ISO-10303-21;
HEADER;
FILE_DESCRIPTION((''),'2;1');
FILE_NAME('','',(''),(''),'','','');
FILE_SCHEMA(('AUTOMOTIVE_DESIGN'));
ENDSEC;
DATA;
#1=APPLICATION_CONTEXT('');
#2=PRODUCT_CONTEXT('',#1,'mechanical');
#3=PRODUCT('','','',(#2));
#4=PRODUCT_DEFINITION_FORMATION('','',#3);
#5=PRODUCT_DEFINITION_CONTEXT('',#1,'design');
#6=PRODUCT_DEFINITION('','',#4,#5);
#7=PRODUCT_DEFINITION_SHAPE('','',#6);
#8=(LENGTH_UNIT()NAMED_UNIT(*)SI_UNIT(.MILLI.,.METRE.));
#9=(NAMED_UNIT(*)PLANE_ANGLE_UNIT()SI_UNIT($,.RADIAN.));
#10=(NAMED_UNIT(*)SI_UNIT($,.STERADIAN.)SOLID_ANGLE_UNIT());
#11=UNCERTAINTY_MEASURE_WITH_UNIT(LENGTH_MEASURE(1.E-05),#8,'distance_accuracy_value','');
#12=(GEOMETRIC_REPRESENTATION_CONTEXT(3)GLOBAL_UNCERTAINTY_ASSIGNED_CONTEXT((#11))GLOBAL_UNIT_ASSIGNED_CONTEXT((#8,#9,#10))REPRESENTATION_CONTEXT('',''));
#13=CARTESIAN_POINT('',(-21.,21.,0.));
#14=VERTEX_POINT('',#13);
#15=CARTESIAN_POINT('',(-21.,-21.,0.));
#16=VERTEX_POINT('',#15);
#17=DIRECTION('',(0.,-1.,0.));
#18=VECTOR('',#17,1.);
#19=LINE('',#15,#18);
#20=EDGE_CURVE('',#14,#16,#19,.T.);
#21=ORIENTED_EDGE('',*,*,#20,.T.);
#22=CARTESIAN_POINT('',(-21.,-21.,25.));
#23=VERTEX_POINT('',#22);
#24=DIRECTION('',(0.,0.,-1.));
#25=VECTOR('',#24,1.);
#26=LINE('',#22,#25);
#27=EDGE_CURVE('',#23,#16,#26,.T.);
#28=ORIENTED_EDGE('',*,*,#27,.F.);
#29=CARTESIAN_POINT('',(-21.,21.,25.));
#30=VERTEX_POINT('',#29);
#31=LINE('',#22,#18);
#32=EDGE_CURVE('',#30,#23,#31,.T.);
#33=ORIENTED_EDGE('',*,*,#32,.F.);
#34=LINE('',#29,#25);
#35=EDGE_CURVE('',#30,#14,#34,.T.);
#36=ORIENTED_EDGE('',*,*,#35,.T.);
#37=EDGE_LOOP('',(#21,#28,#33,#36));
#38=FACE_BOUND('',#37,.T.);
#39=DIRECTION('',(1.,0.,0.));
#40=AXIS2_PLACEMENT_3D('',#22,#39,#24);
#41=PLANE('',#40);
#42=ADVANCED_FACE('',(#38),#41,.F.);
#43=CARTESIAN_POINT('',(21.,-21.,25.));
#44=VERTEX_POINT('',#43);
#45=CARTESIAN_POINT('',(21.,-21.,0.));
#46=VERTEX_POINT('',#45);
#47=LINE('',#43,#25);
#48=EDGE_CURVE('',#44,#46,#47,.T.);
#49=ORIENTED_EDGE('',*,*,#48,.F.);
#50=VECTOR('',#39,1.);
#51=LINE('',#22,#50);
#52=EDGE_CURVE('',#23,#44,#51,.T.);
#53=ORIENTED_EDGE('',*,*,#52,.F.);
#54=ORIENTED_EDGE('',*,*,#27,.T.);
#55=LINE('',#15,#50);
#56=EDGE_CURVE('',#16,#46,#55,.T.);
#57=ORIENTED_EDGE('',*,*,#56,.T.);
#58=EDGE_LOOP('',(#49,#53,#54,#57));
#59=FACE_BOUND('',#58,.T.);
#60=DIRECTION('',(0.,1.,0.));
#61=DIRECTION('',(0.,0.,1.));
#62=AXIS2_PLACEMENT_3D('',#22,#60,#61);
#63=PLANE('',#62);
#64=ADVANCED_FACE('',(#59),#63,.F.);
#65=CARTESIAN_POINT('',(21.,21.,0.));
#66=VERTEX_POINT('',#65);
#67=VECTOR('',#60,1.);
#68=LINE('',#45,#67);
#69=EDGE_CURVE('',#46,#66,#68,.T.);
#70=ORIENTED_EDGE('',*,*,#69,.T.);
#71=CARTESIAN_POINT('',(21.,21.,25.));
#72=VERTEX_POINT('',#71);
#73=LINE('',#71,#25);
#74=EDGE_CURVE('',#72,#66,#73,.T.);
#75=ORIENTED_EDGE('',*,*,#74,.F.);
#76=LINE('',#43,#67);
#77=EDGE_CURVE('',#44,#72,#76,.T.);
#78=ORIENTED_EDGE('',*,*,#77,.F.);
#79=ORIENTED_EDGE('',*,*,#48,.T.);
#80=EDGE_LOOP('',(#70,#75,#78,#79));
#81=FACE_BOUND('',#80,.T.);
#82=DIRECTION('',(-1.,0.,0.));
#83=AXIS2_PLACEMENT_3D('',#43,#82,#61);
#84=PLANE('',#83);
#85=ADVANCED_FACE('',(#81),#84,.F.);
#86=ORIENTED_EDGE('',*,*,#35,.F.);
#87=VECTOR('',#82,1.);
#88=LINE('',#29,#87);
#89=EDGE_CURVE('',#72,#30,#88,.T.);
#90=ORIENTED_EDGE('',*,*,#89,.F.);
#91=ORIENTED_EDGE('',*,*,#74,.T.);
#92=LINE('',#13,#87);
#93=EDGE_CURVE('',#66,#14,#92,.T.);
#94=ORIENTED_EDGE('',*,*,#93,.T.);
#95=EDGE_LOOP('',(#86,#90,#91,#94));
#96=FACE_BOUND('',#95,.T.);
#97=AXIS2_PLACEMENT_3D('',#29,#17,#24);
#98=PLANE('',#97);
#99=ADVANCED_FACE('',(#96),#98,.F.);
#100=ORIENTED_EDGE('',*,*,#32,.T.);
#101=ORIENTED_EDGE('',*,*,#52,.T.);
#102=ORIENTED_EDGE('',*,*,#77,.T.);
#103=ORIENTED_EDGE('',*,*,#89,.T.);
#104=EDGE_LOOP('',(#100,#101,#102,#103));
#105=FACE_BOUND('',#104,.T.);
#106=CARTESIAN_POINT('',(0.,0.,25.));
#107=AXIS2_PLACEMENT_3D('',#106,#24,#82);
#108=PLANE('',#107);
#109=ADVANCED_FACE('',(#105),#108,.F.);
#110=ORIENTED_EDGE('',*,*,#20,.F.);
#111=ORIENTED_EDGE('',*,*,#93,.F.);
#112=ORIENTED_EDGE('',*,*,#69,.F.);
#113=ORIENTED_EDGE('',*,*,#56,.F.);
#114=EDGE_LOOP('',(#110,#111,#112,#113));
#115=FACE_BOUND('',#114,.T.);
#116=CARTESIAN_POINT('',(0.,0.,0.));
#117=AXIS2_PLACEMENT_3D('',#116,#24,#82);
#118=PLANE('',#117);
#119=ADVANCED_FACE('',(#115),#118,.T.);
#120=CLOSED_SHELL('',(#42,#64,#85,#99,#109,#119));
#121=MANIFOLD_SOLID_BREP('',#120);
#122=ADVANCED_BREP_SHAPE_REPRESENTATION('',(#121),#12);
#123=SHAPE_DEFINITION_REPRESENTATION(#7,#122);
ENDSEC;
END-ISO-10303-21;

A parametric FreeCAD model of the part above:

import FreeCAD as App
import Part
import Sketcher
from FreeCAD import Vector
Q = App.Units.Quantity


def add_polygon(sketch, points):
    """Adds a closed chain of lines whose ends are joined by coincident constraints."""
    first, n = sketch.GeometryCount, len(points)
    for a, b in zip(points, points[1:] + points[:1]):
        sketch.addGeometry(Part.LineSegment(App.Vector(*a, 0), App.Vector(*b, 0)), False)
    for i in range(n):
        sketch.addConstraint(Sketcher.Constraint("Coincident", first + i, 2, first + (i + 1) % n, 1))

doc = App.newDocument("Part")
body = doc.addObject("PartDesign::Body", "Body")

# Sketch on XY plane
sketch1 = doc.addObject("Sketcher::SketchObject", "Sketch")
body.addObject(sketch1)
sketch1.AttachmentSupport = (doc.XY_Plane, [""])
sketch1.MapMode = "FlatFace"
add_polygon(sketch1, [(-21, 21), (-21, -21), (21, -21), (21, 21)])  # lines 0-3
sketch1.addConstraint(Sketcher.Constraint("Vertical", 0))
sketch1.addConstraint(Sketcher.Constraint("Horizontal", 1))
sketch1.addConstraint(Sketcher.Constraint("Vertical", 2))
sketch1.addConstraint(Sketcher.Constraint("Horizontal", 3))
sketch1.addConstraint(Sketcher.Constraint("Symmetric", 0, 2, 2, 2, -1, 1))
sketch1.addConstraint(Sketcher.Constraint("Equal", 3, 0))
sketch1.addConstraint(Sketcher.Constraint("DistanceX", 1, 1, 1, 2, Q("42 mm")))
pad1 = doc.addObject("PartDesign::Pad", "Pad")
body.addObject(pad1)
pad1.Profile = sketch1
pad1.Length = 25

doc.recompute()
